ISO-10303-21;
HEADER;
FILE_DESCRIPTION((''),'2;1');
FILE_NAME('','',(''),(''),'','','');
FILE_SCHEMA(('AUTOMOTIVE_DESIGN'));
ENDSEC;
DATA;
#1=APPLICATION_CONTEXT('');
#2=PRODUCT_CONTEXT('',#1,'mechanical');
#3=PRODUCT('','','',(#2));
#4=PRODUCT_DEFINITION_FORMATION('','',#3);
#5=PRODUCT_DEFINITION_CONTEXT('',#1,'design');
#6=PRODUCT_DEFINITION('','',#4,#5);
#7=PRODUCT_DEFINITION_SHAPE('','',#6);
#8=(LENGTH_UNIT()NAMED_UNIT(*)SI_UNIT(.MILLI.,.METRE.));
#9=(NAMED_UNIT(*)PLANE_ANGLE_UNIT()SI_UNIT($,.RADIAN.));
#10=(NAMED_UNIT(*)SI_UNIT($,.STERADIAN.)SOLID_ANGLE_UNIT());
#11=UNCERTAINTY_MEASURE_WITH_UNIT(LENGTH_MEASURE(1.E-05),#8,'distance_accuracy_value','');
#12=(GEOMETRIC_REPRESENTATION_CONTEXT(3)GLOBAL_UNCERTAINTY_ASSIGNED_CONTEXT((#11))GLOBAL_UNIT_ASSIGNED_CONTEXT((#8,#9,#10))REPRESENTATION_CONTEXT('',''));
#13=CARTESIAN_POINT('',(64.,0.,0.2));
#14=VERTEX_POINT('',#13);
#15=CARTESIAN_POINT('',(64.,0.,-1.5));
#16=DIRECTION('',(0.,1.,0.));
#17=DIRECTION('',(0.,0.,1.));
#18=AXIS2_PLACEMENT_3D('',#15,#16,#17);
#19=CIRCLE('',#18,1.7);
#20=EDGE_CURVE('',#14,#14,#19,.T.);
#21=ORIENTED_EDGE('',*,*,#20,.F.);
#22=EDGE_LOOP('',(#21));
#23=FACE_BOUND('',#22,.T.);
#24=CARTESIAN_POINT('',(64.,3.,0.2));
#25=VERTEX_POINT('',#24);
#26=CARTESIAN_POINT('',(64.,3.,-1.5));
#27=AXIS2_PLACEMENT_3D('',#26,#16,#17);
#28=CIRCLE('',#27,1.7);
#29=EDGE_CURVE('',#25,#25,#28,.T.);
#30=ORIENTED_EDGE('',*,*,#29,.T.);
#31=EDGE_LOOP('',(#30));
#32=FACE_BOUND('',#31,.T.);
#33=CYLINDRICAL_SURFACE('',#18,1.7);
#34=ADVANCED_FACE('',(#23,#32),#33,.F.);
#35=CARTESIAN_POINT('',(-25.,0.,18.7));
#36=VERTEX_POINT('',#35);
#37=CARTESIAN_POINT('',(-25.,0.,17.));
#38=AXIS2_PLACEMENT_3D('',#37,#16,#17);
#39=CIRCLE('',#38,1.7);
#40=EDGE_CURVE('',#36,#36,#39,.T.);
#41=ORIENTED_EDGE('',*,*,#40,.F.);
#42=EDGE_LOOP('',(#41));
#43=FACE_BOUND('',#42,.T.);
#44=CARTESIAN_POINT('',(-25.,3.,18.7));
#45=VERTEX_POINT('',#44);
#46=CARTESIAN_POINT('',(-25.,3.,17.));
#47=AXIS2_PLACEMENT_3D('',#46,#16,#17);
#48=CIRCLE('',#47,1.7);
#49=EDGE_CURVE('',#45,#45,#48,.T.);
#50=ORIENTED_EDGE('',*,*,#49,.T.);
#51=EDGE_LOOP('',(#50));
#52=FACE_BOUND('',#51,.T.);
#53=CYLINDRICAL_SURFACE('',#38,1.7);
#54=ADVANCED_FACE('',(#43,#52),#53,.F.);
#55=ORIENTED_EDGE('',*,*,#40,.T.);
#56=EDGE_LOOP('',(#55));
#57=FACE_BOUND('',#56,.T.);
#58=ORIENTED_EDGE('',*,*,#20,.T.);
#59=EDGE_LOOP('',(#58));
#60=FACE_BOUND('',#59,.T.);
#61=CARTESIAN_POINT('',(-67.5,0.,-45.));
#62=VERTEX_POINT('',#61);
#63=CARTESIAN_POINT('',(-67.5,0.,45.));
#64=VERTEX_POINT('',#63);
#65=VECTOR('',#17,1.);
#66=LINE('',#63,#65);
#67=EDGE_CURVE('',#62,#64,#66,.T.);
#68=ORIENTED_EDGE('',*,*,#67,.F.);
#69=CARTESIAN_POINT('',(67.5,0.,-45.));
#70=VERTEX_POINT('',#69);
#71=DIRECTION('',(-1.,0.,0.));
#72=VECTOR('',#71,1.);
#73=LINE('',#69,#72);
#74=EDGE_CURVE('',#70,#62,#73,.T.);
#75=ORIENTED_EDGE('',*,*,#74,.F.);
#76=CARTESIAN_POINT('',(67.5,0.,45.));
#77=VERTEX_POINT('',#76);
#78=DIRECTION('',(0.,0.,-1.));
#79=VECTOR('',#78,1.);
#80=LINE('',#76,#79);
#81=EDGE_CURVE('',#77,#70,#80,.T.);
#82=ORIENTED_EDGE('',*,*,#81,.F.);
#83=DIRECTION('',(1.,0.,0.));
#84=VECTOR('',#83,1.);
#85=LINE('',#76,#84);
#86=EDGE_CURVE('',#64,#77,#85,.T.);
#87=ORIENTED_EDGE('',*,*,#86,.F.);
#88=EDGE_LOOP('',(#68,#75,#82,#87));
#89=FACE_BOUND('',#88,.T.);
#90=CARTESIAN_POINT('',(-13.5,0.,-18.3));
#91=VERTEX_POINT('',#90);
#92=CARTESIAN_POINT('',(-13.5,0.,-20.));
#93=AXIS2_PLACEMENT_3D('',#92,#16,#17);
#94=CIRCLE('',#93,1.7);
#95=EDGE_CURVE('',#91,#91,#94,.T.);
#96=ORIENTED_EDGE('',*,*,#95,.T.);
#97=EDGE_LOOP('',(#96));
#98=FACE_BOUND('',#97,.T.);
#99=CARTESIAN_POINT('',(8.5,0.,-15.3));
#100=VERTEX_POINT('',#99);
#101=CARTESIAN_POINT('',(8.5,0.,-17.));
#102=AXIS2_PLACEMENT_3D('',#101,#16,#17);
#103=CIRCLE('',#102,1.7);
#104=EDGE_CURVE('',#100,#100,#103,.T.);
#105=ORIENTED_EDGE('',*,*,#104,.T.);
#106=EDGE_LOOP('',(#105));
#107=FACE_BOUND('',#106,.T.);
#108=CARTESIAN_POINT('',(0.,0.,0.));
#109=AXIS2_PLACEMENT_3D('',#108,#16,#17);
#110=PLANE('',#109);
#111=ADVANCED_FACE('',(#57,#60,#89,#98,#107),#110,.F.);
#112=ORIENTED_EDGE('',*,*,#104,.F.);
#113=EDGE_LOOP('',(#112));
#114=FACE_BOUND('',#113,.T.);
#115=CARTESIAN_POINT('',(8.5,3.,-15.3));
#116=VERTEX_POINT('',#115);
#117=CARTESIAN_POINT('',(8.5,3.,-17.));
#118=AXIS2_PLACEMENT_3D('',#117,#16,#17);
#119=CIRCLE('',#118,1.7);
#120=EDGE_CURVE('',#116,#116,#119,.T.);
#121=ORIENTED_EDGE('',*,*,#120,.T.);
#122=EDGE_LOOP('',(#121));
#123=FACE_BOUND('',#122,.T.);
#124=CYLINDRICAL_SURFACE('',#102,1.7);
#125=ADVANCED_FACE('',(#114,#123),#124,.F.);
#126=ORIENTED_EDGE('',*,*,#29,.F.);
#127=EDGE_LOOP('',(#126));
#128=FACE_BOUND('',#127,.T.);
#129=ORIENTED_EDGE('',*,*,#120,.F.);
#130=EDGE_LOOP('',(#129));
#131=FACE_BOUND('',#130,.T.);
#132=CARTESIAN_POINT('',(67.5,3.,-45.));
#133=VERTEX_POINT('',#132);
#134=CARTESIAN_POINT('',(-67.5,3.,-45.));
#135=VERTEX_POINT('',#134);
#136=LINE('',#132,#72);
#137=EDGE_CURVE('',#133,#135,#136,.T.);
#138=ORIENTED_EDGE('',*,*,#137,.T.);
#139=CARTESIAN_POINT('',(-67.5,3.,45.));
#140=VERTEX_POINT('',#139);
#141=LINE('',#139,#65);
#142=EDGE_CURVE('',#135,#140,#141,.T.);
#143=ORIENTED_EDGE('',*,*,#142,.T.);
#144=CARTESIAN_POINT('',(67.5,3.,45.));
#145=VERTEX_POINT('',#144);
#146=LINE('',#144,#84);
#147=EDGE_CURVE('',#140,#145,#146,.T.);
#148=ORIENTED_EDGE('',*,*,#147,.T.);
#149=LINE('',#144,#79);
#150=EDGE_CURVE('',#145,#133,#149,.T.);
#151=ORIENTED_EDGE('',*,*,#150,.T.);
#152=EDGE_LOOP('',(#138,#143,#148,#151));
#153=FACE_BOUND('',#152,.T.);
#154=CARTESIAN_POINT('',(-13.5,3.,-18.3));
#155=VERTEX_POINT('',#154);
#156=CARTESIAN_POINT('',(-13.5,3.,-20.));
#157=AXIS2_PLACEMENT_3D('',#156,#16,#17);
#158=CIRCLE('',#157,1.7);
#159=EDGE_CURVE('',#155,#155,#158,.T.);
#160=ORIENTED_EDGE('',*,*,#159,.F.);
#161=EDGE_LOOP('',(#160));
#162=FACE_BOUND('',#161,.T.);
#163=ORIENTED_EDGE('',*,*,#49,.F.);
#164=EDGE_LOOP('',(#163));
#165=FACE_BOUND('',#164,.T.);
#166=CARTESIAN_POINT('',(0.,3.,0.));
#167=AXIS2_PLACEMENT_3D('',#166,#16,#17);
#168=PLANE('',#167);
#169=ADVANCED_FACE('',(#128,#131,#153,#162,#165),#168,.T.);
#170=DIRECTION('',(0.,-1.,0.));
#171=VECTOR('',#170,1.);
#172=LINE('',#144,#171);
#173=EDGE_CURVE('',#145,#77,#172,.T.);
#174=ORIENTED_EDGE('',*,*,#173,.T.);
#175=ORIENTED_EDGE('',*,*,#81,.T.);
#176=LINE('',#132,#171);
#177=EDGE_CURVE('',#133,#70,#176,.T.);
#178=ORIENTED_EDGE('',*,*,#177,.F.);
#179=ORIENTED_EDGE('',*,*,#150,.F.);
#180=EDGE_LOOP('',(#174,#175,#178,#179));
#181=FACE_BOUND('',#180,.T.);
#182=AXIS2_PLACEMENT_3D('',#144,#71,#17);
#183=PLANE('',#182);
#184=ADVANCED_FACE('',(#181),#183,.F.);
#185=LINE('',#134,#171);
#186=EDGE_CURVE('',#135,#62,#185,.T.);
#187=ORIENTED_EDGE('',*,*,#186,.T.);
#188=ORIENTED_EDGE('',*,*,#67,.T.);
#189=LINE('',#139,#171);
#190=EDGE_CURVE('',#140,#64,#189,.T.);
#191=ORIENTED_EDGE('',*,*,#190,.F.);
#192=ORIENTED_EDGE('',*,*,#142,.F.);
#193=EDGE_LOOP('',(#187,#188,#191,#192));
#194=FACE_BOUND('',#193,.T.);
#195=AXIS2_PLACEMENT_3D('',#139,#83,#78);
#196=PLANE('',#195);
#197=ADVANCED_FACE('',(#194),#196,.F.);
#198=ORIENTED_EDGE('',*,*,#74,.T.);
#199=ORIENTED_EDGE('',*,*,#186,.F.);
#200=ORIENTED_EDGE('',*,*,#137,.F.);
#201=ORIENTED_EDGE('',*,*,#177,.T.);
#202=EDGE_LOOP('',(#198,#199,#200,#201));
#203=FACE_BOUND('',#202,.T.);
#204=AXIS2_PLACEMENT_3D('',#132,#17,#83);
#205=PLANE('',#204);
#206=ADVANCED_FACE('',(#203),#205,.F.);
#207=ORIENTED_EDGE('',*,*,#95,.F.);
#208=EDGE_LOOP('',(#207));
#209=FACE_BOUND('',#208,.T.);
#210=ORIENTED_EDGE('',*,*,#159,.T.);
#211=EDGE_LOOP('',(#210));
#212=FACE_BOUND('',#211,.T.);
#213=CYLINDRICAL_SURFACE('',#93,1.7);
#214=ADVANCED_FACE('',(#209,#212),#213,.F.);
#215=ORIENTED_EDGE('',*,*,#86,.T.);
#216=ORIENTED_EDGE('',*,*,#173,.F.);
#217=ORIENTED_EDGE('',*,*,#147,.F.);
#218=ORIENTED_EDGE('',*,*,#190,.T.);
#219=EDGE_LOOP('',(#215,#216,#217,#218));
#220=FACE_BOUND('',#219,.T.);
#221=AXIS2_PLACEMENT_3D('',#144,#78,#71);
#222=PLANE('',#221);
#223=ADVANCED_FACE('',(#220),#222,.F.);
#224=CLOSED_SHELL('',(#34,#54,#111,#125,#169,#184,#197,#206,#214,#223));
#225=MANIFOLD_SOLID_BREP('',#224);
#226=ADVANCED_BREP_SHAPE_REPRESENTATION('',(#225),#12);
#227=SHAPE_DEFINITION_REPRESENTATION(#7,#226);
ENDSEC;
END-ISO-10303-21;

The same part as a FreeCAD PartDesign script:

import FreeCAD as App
import Part
import Sketcher
from FreeCAD import Vector
Q = App.Units.Quantity


def add_polygon(sketch, points):
    """Adds a closed chain of lines whose ends are joined by coincident constraints."""
    first, n = sketch.GeometryCount, len(points)
    for a, b in zip(points, points[1:] + points[:1]):
        sketch.addGeometry(Part.LineSegment(App.Vector(*a, 0), App.Vector(*b, 0)), False)
    for i in range(n):
        sketch.addConstraint(Sketcher.Constraint("Coincident", first + i, 2, first + (i + 1) % n, 1))

doc = App.newDocument("Part")
params = doc.addObject("Spreadsheet::Sheet", "Params")
for row, (alias, value) in enumerate([
    ("sketch1_width", "135 mm"),
    ("sketch1_height", "90 mm"),
    ("pad1_length", "3 mm"),
    ("sketch2_diameter", "3.4 mm"),
], start=1):
    params.set(f"A{row}", alias)
    params.set(f"B{row}", "=" + value)
    params.setAlias(f"B{row}", alias)

body = doc.addObject("PartDesign::Body", "Body")

# Sketch on XZ plane
sketch1 = body.newObject("Sketcher::SketchObject", "Sketch")
sketch1.AttachmentSupport = (doc.getObject("XZ_Plane"), [""])
sketch1.MapMode = "FlatFace"
add_polygon(sketch1, [(-67.5, -45), (-67.5, 45), (67.5, 45), (67.5, -45)])  # lines 0-3
sketch1.addConstraint(Sketcher.Constraint("Vertical", 0))
sketch1.addConstraint(Sketcher.Constraint("Horizontal", 1))
sketch1.addConstraint(Sketcher.Constraint("Vertical", 2))
sketch1.addConstraint(Sketcher.Constraint("Horizontal", 3))
sketch1.addConstraint(Sketcher.Constraint("Symmetric", 0, 2, 2, 2, -1, 1))
sketch1.addConstraint(Sketcher.Constraint("DistanceX", 1, 1, 1, 2, Q("135 mm")))
sketch1.addConstraint(Sketcher.Constraint("DistanceY", 0, 1, 0, 2, Q("90 mm")))
sketch1.setExpression("Constraints[9]", "Params.sketch1_width")
sketch1.setExpression("Constraints[10]", "Params.sketch1_height")
pad1 = body.newObject("PartDesign::Pad", "Pad")
pad1.Profile = sketch1
pad1.setExpression("Length", "Params.pad1_length")
pad1.Reversed = True

# Sketch on XZ plane
sketch2 = body.newObject("Sketcher::SketchObject", "Sketch001")
sketch2.AttachmentSupport = (doc.getObject("XZ_Plane"), [""])
sketch2.MapMode = "FlatFace"
sketch2.AttachmentOffset = App.Placement(Vector(0, 0, -3), App.Rotation())
sketch2.addGeometry(Part.Circle(Vector(-13.5, -20, 0), Vector(0, 0, 1), 1.7), False)
sketch2.addGeometry(Part.Circle(Vector(8.5, -17, 0), Vector(0, 0, 1), 1.7), False)
sketch2.addGeometry(Part.Circle(Vector(-25, 17, 0), Vector(0, 0, 1), 1.7), False)
sketch2.addGeometry(Part.Circle(Vector(64, -1.5, 0), Vector(0, 0, 1), 1.7), False)
sketch2.addConstraint(Sketcher.Constraint("Equal", 0, 1))
sketch2.addConstraint(Sketcher.Constraint("Equal", 1, 2))
sketch2.addConstraint(Sketcher.Constraint("Equal", 2, 3))
sketch2.addConstraint(Sketcher.Constraint("Diameter", 0, Q("3.4 mm")))
sketch2.addConstraint(Sketcher.Constraint("DistanceY", 0, 3, -1, 1, Q("20 mm")))
sketch2.addConstraint(Sketcher.Constraint("DistanceY", 1, 3, -1, 1, Q("17 mm")))
sketch2.addConstraint(Sketcher.Constraint("DistanceX", 2, 3, -1, 1, Q("25 mm")))
sketch2.addConstraint(Sketcher.Constraint("DistanceY", -1, 1, 2, 3, Q("17 mm")))
sketch2.addConstraint(Sketcher.Constraint("DistanceX", -1, 1, 3, 3, Q("64 mm")))
sketch2.addConstraint(Sketcher.Constraint("DistanceX", 0, 3, 1, 3, Q("22 mm")))
sketch2.addConstraint(Sketcher.Constraint("DistanceX", 0, 3, -1, 1, Q("13.5 mm")))
sketch2.addConstraint(Sketcher.Constraint("DistanceY", 3, 3, -1, 1, Q("1.5 mm")))
sketch2.setExpression("Constraints[3]", "Params.sketch2_diameter")
pocket1 = body.newObject("PartDesign::Pocket", "Pocket")
pocket1.Profile = sketch2
pocket1.Type = "ThroughAll"
pocket1.Reversed = True

doc.recompute()
